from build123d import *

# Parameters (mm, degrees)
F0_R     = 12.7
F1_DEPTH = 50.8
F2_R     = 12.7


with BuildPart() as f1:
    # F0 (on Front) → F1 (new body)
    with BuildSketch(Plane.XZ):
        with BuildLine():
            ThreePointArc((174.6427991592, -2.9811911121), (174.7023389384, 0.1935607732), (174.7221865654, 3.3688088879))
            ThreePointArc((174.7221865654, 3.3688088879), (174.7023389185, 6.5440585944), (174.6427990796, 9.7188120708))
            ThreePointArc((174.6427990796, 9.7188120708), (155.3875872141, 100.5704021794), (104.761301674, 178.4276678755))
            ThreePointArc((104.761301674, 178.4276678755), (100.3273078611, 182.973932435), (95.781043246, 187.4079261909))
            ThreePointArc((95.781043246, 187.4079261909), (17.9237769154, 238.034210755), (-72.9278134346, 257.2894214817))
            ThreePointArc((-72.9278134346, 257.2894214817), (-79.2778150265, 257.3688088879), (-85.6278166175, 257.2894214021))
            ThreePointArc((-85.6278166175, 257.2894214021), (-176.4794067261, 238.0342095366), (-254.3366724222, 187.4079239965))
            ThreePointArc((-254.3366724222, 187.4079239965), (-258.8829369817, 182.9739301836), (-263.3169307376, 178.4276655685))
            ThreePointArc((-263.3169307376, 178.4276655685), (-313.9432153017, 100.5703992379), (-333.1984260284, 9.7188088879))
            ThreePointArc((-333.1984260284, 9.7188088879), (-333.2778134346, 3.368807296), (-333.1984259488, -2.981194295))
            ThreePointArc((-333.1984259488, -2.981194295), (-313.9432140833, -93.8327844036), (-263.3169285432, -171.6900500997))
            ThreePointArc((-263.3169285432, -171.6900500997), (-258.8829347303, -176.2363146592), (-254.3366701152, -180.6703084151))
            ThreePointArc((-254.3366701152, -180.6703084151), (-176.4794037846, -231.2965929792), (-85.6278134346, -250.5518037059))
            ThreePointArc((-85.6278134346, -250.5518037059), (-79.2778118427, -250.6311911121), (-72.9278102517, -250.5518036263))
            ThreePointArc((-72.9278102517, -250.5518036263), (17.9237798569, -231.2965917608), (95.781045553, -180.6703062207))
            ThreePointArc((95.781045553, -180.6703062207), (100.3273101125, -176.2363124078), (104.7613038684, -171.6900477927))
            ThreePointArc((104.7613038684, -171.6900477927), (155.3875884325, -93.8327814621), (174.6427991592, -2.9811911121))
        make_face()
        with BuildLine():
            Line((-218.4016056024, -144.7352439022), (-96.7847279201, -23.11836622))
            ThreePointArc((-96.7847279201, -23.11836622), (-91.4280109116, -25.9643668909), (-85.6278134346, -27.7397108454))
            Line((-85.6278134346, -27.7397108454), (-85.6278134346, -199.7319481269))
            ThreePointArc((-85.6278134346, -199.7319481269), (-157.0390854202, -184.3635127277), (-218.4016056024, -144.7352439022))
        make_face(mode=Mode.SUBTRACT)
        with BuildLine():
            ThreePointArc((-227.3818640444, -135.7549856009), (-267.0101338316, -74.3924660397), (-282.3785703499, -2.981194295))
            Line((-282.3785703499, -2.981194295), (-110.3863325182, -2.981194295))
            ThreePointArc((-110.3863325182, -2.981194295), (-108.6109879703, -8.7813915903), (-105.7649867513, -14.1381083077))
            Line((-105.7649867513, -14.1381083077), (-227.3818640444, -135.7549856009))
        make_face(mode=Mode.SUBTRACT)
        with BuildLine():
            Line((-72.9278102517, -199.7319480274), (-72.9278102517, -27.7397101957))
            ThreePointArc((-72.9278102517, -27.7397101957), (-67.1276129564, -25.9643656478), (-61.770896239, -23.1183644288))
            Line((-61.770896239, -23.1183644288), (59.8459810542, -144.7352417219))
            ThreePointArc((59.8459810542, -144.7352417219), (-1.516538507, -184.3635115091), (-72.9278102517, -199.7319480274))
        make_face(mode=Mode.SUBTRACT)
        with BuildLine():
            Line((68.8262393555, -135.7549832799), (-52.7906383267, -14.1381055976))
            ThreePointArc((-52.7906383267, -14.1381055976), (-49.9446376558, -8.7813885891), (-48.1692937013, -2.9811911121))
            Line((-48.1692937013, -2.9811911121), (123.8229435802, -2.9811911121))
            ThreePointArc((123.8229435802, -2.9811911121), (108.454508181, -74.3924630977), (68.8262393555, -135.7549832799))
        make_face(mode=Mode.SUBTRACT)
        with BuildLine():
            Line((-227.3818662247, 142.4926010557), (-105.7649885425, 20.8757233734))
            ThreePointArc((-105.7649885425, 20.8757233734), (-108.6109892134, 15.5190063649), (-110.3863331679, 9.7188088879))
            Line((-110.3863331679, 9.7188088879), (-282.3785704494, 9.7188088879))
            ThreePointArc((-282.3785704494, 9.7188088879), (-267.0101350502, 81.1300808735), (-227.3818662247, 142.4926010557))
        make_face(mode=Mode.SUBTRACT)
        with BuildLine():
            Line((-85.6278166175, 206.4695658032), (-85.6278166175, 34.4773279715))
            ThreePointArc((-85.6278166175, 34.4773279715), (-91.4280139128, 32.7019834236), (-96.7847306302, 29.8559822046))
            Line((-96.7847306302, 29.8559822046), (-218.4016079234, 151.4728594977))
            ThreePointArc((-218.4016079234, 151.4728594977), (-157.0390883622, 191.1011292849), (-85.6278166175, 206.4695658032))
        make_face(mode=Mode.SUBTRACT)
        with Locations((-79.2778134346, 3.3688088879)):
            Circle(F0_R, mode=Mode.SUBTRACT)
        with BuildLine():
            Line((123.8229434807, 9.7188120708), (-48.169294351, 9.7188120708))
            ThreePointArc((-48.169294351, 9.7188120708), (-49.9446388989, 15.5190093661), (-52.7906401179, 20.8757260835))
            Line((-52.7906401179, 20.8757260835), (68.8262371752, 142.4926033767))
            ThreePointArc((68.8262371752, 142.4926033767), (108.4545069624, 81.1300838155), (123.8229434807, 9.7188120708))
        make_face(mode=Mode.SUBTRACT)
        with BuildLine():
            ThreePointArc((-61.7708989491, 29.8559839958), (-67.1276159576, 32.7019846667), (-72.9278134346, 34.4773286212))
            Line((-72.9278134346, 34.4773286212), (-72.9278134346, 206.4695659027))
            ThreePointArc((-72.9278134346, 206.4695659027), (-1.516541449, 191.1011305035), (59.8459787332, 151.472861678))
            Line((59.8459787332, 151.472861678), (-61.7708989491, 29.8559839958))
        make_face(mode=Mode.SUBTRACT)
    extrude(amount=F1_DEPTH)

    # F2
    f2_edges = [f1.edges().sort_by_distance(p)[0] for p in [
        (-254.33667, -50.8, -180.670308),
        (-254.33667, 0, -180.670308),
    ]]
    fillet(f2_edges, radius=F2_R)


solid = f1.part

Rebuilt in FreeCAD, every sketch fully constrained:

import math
import FreeCAD as App
import Part
import Sketcher
Q = App.Units.Quantity


def edges_at(feature, points):
    """Names of the edges that pass closest to the given points."""
    edges = feature.Shape.Edges
    near = lambda p: min(range(len(edges)), key=lambda i: edges[i].distToShape(Part.Vertex(*p))[0])
    return sorted({f"Edge{near(p) + 1}" for p in points})

doc = App.newDocument("Part")
params = doc.addObject("Spreadsheet::Sheet", "Params")
for row, (alias, value) in enumerate([
    ("sketch1_diameter", "1 in"),
    ("sketch1_radius", "10 in"),
    ("sketch1_radius2", "8 in"),
    ("sketch1_radius3", "1.25 in"),
    ("pad1_length", "2 in"),
    ("fillet_radius", "0.5 in"),
], start=1):
    params.set(f"A{row}", alias)
    params.set(f"B{row}", "=" + value)
    params.setAlias(f"B{row}", alias)

body = doc.addObject("PartDesign::Body", "Body")

# Sketch on XZ plane
sketch1 = body.newObject("Sketcher::SketchObject", "Sketch")
sketch1.AttachmentSupport = (doc.getObject("XZ_Plane"), [""])
sketch1.MapMode = "FlatFace"
sketch1.addGeometry(Part.ArcOfCircle(Part.Circle(App.Vector(-79.277814, 3.368809, 0), App.Vector(0, 0, 1), 254), math.radians(-1.432544), math.radians(1.432544)), False)
sketch1.addGeometry(Part.ArcOfCircle(Part.Circle(App.Vector(-79.277813, 3.368809, 0), App.Vector(0, 0, 1), 254), math.radians(1.432544), math.radians(43.567456)), False)
sketch1.addGeometry(Part.ArcOfCircle(Part.Circle(App.Vector(-79.277813, 3.368809, 0), App.Vector(0, 0, 1), 254), math.radians(43.567456), math.radians(46.432544)), False)
sketch1.addGeometry(Part.ArcOfCircle(Part.Circle(App.Vector(-79.277813, 3.368809, 0), App.Vector(0, 0, 1), 254), math.radians(46.432544), math.radians(88.567456)), False)
sketch1.addGeometry(Part.ArcOfCircle(Part.Circle(App.Vector(-79.277813, 3.368809, 0), App.Vector(0, 0, 1), 254), math.radians(88.567456), math.radians(91.432544)), False)
sketch1.addGeometry(Part.ArcOfCircle(Part.Circle(App.Vector(-79.277813, 3.368809, 0), App.Vector(0, 0, 1), 254), math.radians(91.432544), math.radians(133.567456)), False)
sketch1.addGeometry(Part.ArcOfCircle(Part.Circle(App.Vector(-79.277814, 3.368809, 0), App.Vector(0, 0, 1), 254), math.radians(133.567456), math.radians(136.432544)), False)
sketch1.addGeometry(Part.ArcOfCircle(Part.Circle(App.Vector(-79.277813, 3.368809, 0), App.Vector(0, 0, 1), 254), math.radians(136.432544), math.radians(178.567456)), False)
sketch1.addGeometry(Part.ArcOfCircle(Part.Circle(App.Vector(-79.277813, 3.368809, 0), App.Vector(0, 0, 1), 254), math.radians(178.567456), math.radians(181.432544)), False)
sketch1.addGeometry(Part.ArcOfCircle(Part.Circle(App.Vector(-79.277813, 3.368809, 0), App.Vector(0, 0, 1), 254), math.radians(-178.567456), math.radians(-136.432544)), False)
sketch1.addGeometry(Part.ArcOfCircle(Part.Circle(App.Vector(-79.277814, 3.368809, 0), App.Vector(0, 0, 1), 254), math.radians(-136.432544), math.radians(-133.567456)), False)
sketch1.addGeometry(Part.ArcOfCircle(Part.Circle(App.Vector(-79.277813, 3.368809, 0), App.Vector(0, 0, 1), 254), math.radians(-133.567456), math.radians(-91.432544)), False)
sketch1.addGeometry(Part.ArcOfCircle(Part.Circle(App.Vector(-79.277813, 3.368809, 0), App.Vector(0, 0, 1), 254), math.radians(-91.432544), math.radians(-88.567456)), False)
sketch1.addGeometry(Part.ArcOfCircle(Part.Circle(App.Vector(-79.277813, 3.368809, 0), App.Vector(0, 0, 1), 254), math.radians(-88.567456), math.radians(-46.432544)), False)
sketch1.addGeometry(Part.ArcOfCircle(Part.Circle(App.Vector(-79.277813, 3.368809, 0), App.Vector(0, 0, 1), 254), math.radians(-46.432544), math.radians(-43.567456)), False)
sketch1.addGeometry(Part.ArcOfCircle(Part.Circle(App.Vector(-79.277813, 3.368809, 0), App.Vector(0, 0, 1), 254), math.radians(-43.567456), math.radians(-1.432544)), False)
sketch1.addGeometry(Part.ArcOfCircle(Part.Circle(App.Vector(-79.277813, 3.368809, 0), App.Vector(0, 0, 1), 203.2), math.radians(-133.209214), math.radians(-91.790785)), False)
sketch1.addGeometry(Part.LineSegment(App.Vector(-218.401606, -144.735244, 0), App.Vector(-96.784728, -23.118366, 0)), False)
sketch1.addGeometry(Part.ArcOfCircle(Part.Circle(App.Vector(-79.277813, 3.368809, 0), App.Vector(0, 0, 1), 31.75), math.radians(-123.463035), math.radians(-101.536959)), False)
sketch1.addGeometry(Part.LineSegment(App.Vector(-85.627813, -27.739711, 0), App.Vector(-85.627813, -199.731948, 0)), False)
sketch1.addGeometry(Part.LineSegment(App.Vector(-105.764987, -14.138108, 0), App.Vector(-227.381864, -135.754986, 0)), False)
sketch1.addGeometry(Part.ArcOfCircle(Part.Circle(App.Vector(-79.277813, 3.368809, 0), App.Vector(0, 0, 1), 203.2), math.radians(-178.209214), math.radians(-136.790785)), False)
sketch1.addGeometry(Part.LineSegment(App.Vector(-282.37857, -2.981194, 0), App.Vector(-110.386333, -2.981194, 0)), False)
sketch1.addGeometry(Part.ArcOfCircle(Part.Circle(App.Vector(-79.277813, 3.368809, 0), App.Vector(0, 0, 1), 31.75), math.radians(-168.463035), math.radians(-146.536959)), False)
sketch1.addGeometry(Part.ArcOfCircle(Part.Circle(App.Vector(-79.277813, 3.368809, 0), App.Vector(0, 0, 1), 203.2), math.radians(-88.209214), math.radians(-46.790785)), False)
sketch1.addGeometry(Part.LineSegment(App.Vector(-72.92781, -199.731948, 0), App.Vector(-72.92781, -27.73971, 0)), False)
sketch1.addGeometry(Part.ArcOfCircle(Part.Circle(App.Vector(-79.277813, 3.368809, 0), App.Vector(0, 0, 1), 31.75), math.radians(-78.463035), math.radians(-56.536959)), False)
sketch1.addGeometry(Part.LineSegment(App.Vector(-61.770896, -23.118364, 0), App.Vector(59.845981, -144.735242, 0)), False)
sketch1.addGeometry(Part.ArcOfCircle(Part.Circle(App.Vector(-79.277813, 3.368809, 0), App.Vector(0, 0, 1), 203.2), math.radians(-43.209214), math.radians(-1.790785)), False)
sketch1.addGeometry(Part.LineSegment(App.Vector(68.826239, -135.754983, 0), App.Vector(-52.790638, -14.138106, 0)), False)
sketch1.addGeometry(Part.ArcOfCircle(Part.Circle(App.Vector(-79.277813, 3.368809, 0), App.Vector(0, 0, 1), 31.75), math.radians(-33.463035), math.radians(-11.536959)), False)
sketch1.addGeometry(Part.LineSegment(App.Vector(-48.169294, -2.981191, 0), App.Vector(123.822944, -2.981191, 0)), False)
sketch1.addGeometry(Part.ArcOfCircle(Part.Circle(App.Vector(-79.277813, 3.368809, 0), App.Vector(0, 0, 1), 203.2), math.radians(136.790786), math.radians(178.209215)), False)
sketch1.addGeometry(Part.LineSegment(App.Vector(-227.381866, 142.492601, 0), App.Vector(-105.764989, 20.875723, 0)), False)
sketch1.addGeometry(Part.ArcOfCircle(Part.Circle(App.Vector(-79.277813, 3.368809, 0), App.Vector(0, 0, 1), 31.75), math.radians(146.536965), math.radians(168.463041)), False)
sketch1.addGeometry(Part.LineSegment(App.Vector(-110.386333, 9.718809, 0), App.Vector(-282.37857, 9.718809, 0)), False)
sketch1.addGeometry(Part.ArcOfCircle(Part.Circle(App.Vector(-79.277813, 3.368809, 0), App.Vector(0, 0, 1), 203.2), math.radians(91.790786), math.radians(133.209215)), False)
sketch1.addGeometry(Part.LineSegment(App.Vector(-85.627817, 206.469566, 0), App.Vector(-85.627817, 34.477328, 0)), False)
sketch1.addGeometry(Part.ArcOfCircle(Part.Circle(App.Vector(-79.277813, 3.368809, 0), App.Vector(0, 0, 1), 31.75), math.radians(101.536965), math.radians(123.463041)), False)
sketch1.addGeometry(Part.LineSegment(App.Vector(-96.784731, 29.855982, 0), App.Vector(-218.401608, 151.472859, 0)), False)
sketch1.addGeometry(Part.Circle(App.Vector(-79.277813, 3.368809, 0), App.Vector(0, 0, 1), 12.7), False)
sketch1.addGeometry(Part.ArcOfCircle(Part.Circle(App.Vector(-79.277813, 3.368809, 0), App.Vector(0, 0, 1), 203.2), math.radians(1.790786), math.radians(43.209215)), False)
sketch1.addGeometry(Part.LineSegment(App.Vector(123.822943, 9.718812, 0), App.Vector(-48.169294, 9.718812, 0)), False)
sketch1.addGeometry(Part.ArcOfCircle(Part.Circle(App.Vector(-79.277813, 3.368809, 0), App.Vector(0, 0, 1), 31.75), math.radians(11.536965), math.radians(33.463041)), False)
sketch1.addGeometry(Part.LineSegment(App.Vector(-52.79064, 20.875726, 0), App.Vector(68.826237, 142.492603, 0)), False)
sketch1.addGeometry(Part.LineSegment(App.Vector(59.845979, 151.472862, 0), App.Vector(-61.770899, 29.855984, 0)), False)
sketch1.addGeometry(Part.ArcOfCircle(Part.Circle(App.Vector(-79.277813, 3.368809, 0), App.Vector(0, 0, 1), 31.75), math.radians(56.536965), math.radians(78.463041)), False)
sketch1.addGeometry(Part.LineSegment(App.Vector(-72.927813, 34.477329, 0), App.Vector(-72.927813, 206.469566, 0)), False)
sketch1.addGeometry(Part.ArcOfCircle(Part.Circle(App.Vector(-79.277813, 3.368809, 0), App.Vector(0, 0, 1), 203.2), math.radians(46.790786), math.radians(88.209215)), False)
sketch1.addConstraint(Sketcher.Constraint("Tangent", 0, 2, 1, 1))
sketch1.addConstraint(Sketcher.Constraint("Tangent", 1, 2, 2, 1))
sketch1.addConstraint(Sketcher.Constraint("Tangent", 2, 2, 3, 1))
sketch1.addConstraint(Sketcher.Constraint("Tangent", 3, 2, 4, 1))
sketch1.addConstraint(Sketcher.Constraint("Tangent", 4, 2, 5, 1))
sketch1.addConstraint(Sketcher.Constraint("Tangent", 5, 2, 6, 1))
sketch1.addConstraint(Sketcher.Constraint("Tangent", 6, 2, 7, 1))
sketch1.addConstraint(Sketcher.Constraint("Tangent", 7, 2, 8, 1))
sketch1.addConstraint(Sketcher.Constraint("Tangent", 8, 2, 9, 1))
sketch1.addConstraint(Sketcher.Constraint("Tangent", 9, 2, 10, 1))
sketch1.addConstraint(Sketcher.Constraint("Tangent", 10, 2, 11, 1))
sketch1.addConstraint(Sketcher.Constraint("Tangent", 11, 2, 12, 1))
sketch1.addConstraint(Sketcher.Constraint("Tangent", 12, 2, 13, 1))
sketch1.addConstraint(Sketcher.Constraint("Tangent", 13, 2, 14, 1))
sketch1.addConstraint(Sketcher.Constraint("Tangent", 14, 2, 15, 1))
sketch1.addConstraint(Sketcher.Constraint("Tangent", 15, 2, 0, 1))
sketch1.addConstraint(Sketcher.Constraint("Coincident", 16, 1, 17, 1))
sketch1.addConstraint(Sketcher.Constraint("Coincident", 17, 2, 18, 1))
sketch1.addConstraint(Sketcher.Constraint("Coincident", 18, 2, 19, 1))
sketch1.addConstraint(Sketcher.Constraint("Coincident", 19, 2, 16, 2))
sketch1.addConstraint(Sketcher.Constraint("Coincident", 20, 2, 21, 2))
sketch1.addConstraint(Sketcher.Constraint("Coincident", 21, 1, 22, 1))
sketch1.addConstraint(Sketcher.Constraint("Coincident", 22, 2, 23, 1))
sketch1.addConstraint(Sketcher.Constraint("Coincident", 23, 2, 20, 1))
sketch1.addConstraint(Sketcher.Constraint("Coincident", 24, 1, 25, 1))
sketch1.addConstraint(Sketcher.Constraint("Coincident", 25, 2, 26, 1))
sketch1.addConstraint(Sketcher.Constraint("Coincident", 26, 2, 27, 1))
sketch1.addConstraint(Sketcher.Constraint("Coincident", 27, 2, 24, 2))
sketch1.addConstraint(Sketcher.Constraint("Coincident", 28, 1, 29, 1))
sketch1.addConstraint(Sketcher.Constraint("Coincident", 29, 2, 30, 1))
sketch1.addConstraint(Sketcher.Constraint("Coincident", 30, 2, 31, 1))
sketch1.addConstraint(Sketcher.Constraint("Coincident", 31, 2, 28, 2))
sketch1.addConstraint(Sketcher.Constraint("Coincident", 32, 1, 33, 1))
sketch1.addConstraint(Sketcher.Constraint("Coincident", 33, 2, 34, 1))
sketch1.addConstraint(Sketcher.Constraint("Coincident", 34, 2, 35, 1))
sketch1.addConstraint(Sketcher.Constraint("Coincident", 35, 2, 32, 2))
sketch1.addConstraint(Sketcher.Constraint("Coincident", 36, 1, 37, 1))
sketch1.addConstraint(Sketcher.Constraint("Coincident", 37, 2, 38, 1))
sketch1.addConstraint(Sketcher.Constraint("Coincident", 38, 2, 39, 1))
sketch1.addConstraint(Sketcher.Constraint("Coincident", 39, 2, 36, 2))
sketch1.addConstraint(Sketcher.Constraint("Coincident", 41, 1, 42, 1))
sketch1.addConstraint(Sketcher.Constraint("Coincident", 42, 2, 43, 1))
sketch1.addConstraint(Sketcher.Constraint("Coincident", 43, 2, 44, 1))
sketch1.addConstraint(Sketcher.Constraint("Coincident", 44, 2, 41, 2))
sketch1.addConstraint(Sketcher.Constraint("Coincident", 45, 2, 46, 1))
sketch1.addConstraint(Sketcher.Constraint("Coincident", 46, 2, 47, 1))
sketch1.addConstraint(Sketcher.Constraint("Coincident", 47, 2, 48, 2))
sketch1.addConstraint(Sketcher.Constraint("Coincident", 48, 1, 45, 1))
sketch1.addConstraint(Sketcher.Constraint("Vertical", 19))
sketch1.addConstraint(Sketcher.Constraint("Horizontal", 22))
sketch1.addConstraint(Sketcher.Constraint("Vertical", 25))
sketch1.addConstraint(Sketcher.Constraint("Horizontal", 31))
sketch1.addConstraint(Sketcher.Constraint("Horizontal", 35))
sketch1.addConstraint(Sketcher.Constraint("Vertical", 37))
sketch1.addConstraint(Sketcher.Constraint("Horizontal", 42))
sketch1.addConstraint(Sketcher.Constraint("Vertical", 47))
sketch1.addConstraint(Sketcher.Constraint("Coincident", 2, 3, 0, 3))
sketch1.addConstraint(Sketcher.Constraint("Coincident", 4, 3, 0, 3))
sketch1.addConstraint(Sketcher.Constraint("Coincident", 6, 3, 0, 3))
sketch1.addConstraint(Sketcher.Constraint("Coincident", 8, 3, 0, 3))
sketch1.addConstraint(Sketcher.Constraint("Coincident", 10, 3, 0, 3))
sketch1.addConstraint(Sketcher.Constraint("Coincident", 12, 3, 0, 3))
sketch1.addConstraint(Sketcher.Constraint("Coincident", 16, 3, 0, 3))
sketch1.addConstraint(Sketcher.Constraint("Coincident", 18, 3, 0, 3))
sketch1.addConstraint(Sketcher.Constraint("Coincident", 21, 3, 0, 3))
sketch1.addConstraint(Sketcher.Constraint("Coincident", 23, 3, 0, 3))
sketch1.addConstraint(Sketcher.Constraint("Coincident", 24, 3, 0, 3))
sketch1.addConstraint(Sketcher.Constraint("Coincident", 26, 3, 0, 3))
sketch1.addConstraint(Sketcher.Constraint("Coincident", 28, 3, 0, 3))
sketch1.addConstraint(Sketcher.Constraint("Coincident", 30, 3, 0, 3))
sketch1.addConstraint(Sketcher.Constraint("Coincident", 32, 3, 0, 3))
sketch1.addConstraint(Sketcher.Constraint("Coincident", 34, 3, 0, 3))
sketch1.addConstraint(Sketcher.Constraint("Coincident", 36, 3, 0, 3))
sketch1.addConstraint(Sketcher.Constraint("Coincident", 38, 3, 0, 3))
sketch1.addConstraint(Sketcher.Constraint("Coincident", 40, 3, 0, 3))
sketch1.addConstraint(Sketcher.Constraint("Coincident", 41, 3, 0, 3))
sketch1.addConstraint(Sketcher.Constraint("Coincident", 43, 3, 0, 3))
sketch1.addConstraint(Sketcher.Constraint("Coincident", 46, 3, 0, 3))
sketch1.addConstraint(Sketcher.Constraint("Coincident", 48, 3, 0, 3))
sketch1.addConstraint(Sketcher.Constraint("Equal", 12, 13))
sketch1.addConstraint(Sketcher.Constraint("Equal", 16, 21))
sketch1.addConstraint(Sketcher.Constraint("Equal", 18, 23))
sketch1.addConstraint(Sketcher.Constraint("Equal", 21, 24))
sketch1.addConstraint(Sketcher.Constraint("Equal", 23, 26))
sketch1.addConstraint(Sketcher.Constraint("Equal", 24, 28))
sketch1.addConstraint(Sketcher.Constraint("Equal", 26, 30))
sketch1.addConstraint(Sketcher.Constraint("Equal", 28, 32))
sketch1.addConstraint(Sketcher.Constraint("Equal", 30, 34))
sketch1.addConstraint(Sketcher.Constraint("Equal", 32, 36))
sketch1.addConstraint(Sketcher.Constraint("Equal", 34, 38))
sketch1.addConstraint(Sketcher.Constraint("Equal", 36, 41))
sketch1.addConstraint(Sketcher.Constraint("Equal", 38, 43))
sketch1.addConstraint(Sketcher.Constraint("Equal", 43, 46))
sketch1.addConstraint(Sketcher.Constraint("Equal", 41, 48))
sketch1.addConstraint(Sketcher.Constraint("Parallel", 17, 20))
sketch1.addConstraint(Sketcher.Constraint("Perpendicular", 20, 27))
sketch1.addConstraint(Sketcher.Constraint("Parallel", 27, 29))
sketch1.addConstraint(Sketcher.Constraint("Parallel", 29, 33))
sketch1.addConstraint(Sketcher.Constraint("Parallel", 33, 39))
sketch1.addConstraint(Sketcher.Constraint("Perpendicular", 39, 44))
sketch1.addConstraint(Sketcher.Constraint("Parallel", 44, 45))
sketch1.addConstraint(Sketcher.Constraint("Horizontal", 3, 2, 4, 2))
sketch1.addConstraint(Sketcher.Constraint("Horizontal", 11, 2, 12, 2))
sketch1.addConstraint(Sketcher.Constraint("Horizontal", 8, 2, 21, 1))
sketch1.addConstraint(Sketcher.Constraint("Horizontal", 19, 2, 24, 1))
sketch1.addConstraint(Sketcher.Constraint("Horizontal", 17, 2, 26, 2))
sketch1.addConstraint(Sketcher.Constraint("Horizontal", 15, 2, 30, 2))
sketch1.addConstraint(Sketcher.Constraint("Horizontal", 7, 2, 34, 2))
sketch1.addConstraint(Sketcher.Constraint("Horizontal", 0, 2, 41, 1))
sketch1.addConstraint(Sketcher.Constraint("Horizontal", 38, 2, 45, 2))
sketch1.addConstraint(Sketcher.Constraint("Horizontal", 37, 2, 46, 2))
sketch1.addConstraint(Sketcher.Constraint("Vertical", 7, 2, 8, 2))
sketch1.addConstraint(Sketcher.Constraint("Vertical", 0, 2, 15, 2))
sketch1.addConstraint(Sketcher.Constraint("Vertical", 11, 2, 18, 2))
sketch1.addConstraint(Sketcher.Constraint("Vertical", 23, 2, 33, 2))
sketch1.addConstraint(Sketcher.Constraint("Vertical", 4, 2, 36, 1))
sketch1.addConstraint(Sketcher.Constraint("Vertical", 29, 2, 43, 2))
sketch1.addConstraint(Sketcher.Constraint("Equal", 22, 31))
sketch1.addConstraint(Sketcher.Constraint("Equal", 42, 19))
sketch1.addConstraint(Sketcher.Constraint("Equal", 25, 37))
sketch1.addConstraint(Sketcher.Constraint("Equal", 17, 20))
sketch1.addConstraint(Sketcher.Constraint("Equal", 20, 27))
sketch1.addConstraint(Sketcher.Constraint("Equal", 27, 29))
sketch1.addConstraint(Sketcher.Constraint("Equal", 33, 39))
sketch1.addConstraint(Sketcher.Constraint("Diameter", 40, Q("1 in")))
sketch1.addConstraint(Sketcher.Constraint("Radius", 0, Q("10 in")))
sketch1.addConstraint(Sketcher.Constraint("Radius", 16, Q("8 in")))
sketch1.addConstraint(Sketcher.Constraint("Radius", 18, Q("1.25 in")))
sketch1.addConstraint(Sketcher.Constraint("DistanceX", -1, 1, 0, 2, Q("174.642799 mm")))
sketch1.addConstraint(Sketcher.Constraint("DistanceX", -1, 1, 1, 2, Q("104.761302 mm")))
sketch1.addConstraint(Sketcher.Constraint("DistanceX", 45, 2, -1, 1, Q("61.770899 mm")))
sketch1.addConstraint(Sketcher.Constraint("DistanceX", 22, 1, 22, 2, Q("171.992238 mm")))
sketch1.addConstraint(Sketcher.Constraint("DistanceY", -1, 1, 0, 3, Q("3.368809 mm")))
sketch1.addConstraint(Sketcher.Constraint("DistanceX", 6, 2, -1, 1, Q("263.316931 mm")))
sketch1.addConstraint(Sketcher.Constraint("DistanceX", 9, 2, -1, 1, Q("263.316929 mm")))
sketch1.addConstraint(Sketcher.Constraint("DistanceX", 10, 2, -1, 1, Q("254.33667 mm")))
sketch1.addConstraint(Sketcher.Constraint("DistanceX", -1, 1, 2, 2, Q("95.781043 mm")))
sketch1.addConstraint(Sketcher.Constraint("DistanceX", 5, 2, -1, 1, Q("254.336672 mm")))
sketch1.addConstraint(Sketcher.Constraint("DistanceX", -1, 1, 13, 2, Q("95.781046 mm")))
sketch1.addConstraint(Sketcher.Constraint("DistanceX", -1, 1, 14, 2, Q("104.761304 mm")))
sketch1.setExpression("Constraints[124]", "Params.sketch1_diameter")
sketch1.setExpression("Constraints[125]", "Params.sketch1_radius")
sketch1.setExpression("Constraints[126]", "Params.sketch1_radius2")
sketch1.setExpression("Constraints[127]", "Params.sketch1_radius3")
pad1 = body.newObject("PartDesign::Pad", "Pad")
pad1.Profile = sketch1
pad1.setExpression("Length", "Params.pad1_length")
doc.recompute()

fillet = body.newObject("PartDesign::Fillet", "Fillet")
fillet.Base = (pad1, edges_at(pad1, [(-258.883, -50.8, -176.236), (-258.883, 0, -176.236)]))
fillet.setExpression("Radius", "Params.fillet_radius")

doc.recompute()
